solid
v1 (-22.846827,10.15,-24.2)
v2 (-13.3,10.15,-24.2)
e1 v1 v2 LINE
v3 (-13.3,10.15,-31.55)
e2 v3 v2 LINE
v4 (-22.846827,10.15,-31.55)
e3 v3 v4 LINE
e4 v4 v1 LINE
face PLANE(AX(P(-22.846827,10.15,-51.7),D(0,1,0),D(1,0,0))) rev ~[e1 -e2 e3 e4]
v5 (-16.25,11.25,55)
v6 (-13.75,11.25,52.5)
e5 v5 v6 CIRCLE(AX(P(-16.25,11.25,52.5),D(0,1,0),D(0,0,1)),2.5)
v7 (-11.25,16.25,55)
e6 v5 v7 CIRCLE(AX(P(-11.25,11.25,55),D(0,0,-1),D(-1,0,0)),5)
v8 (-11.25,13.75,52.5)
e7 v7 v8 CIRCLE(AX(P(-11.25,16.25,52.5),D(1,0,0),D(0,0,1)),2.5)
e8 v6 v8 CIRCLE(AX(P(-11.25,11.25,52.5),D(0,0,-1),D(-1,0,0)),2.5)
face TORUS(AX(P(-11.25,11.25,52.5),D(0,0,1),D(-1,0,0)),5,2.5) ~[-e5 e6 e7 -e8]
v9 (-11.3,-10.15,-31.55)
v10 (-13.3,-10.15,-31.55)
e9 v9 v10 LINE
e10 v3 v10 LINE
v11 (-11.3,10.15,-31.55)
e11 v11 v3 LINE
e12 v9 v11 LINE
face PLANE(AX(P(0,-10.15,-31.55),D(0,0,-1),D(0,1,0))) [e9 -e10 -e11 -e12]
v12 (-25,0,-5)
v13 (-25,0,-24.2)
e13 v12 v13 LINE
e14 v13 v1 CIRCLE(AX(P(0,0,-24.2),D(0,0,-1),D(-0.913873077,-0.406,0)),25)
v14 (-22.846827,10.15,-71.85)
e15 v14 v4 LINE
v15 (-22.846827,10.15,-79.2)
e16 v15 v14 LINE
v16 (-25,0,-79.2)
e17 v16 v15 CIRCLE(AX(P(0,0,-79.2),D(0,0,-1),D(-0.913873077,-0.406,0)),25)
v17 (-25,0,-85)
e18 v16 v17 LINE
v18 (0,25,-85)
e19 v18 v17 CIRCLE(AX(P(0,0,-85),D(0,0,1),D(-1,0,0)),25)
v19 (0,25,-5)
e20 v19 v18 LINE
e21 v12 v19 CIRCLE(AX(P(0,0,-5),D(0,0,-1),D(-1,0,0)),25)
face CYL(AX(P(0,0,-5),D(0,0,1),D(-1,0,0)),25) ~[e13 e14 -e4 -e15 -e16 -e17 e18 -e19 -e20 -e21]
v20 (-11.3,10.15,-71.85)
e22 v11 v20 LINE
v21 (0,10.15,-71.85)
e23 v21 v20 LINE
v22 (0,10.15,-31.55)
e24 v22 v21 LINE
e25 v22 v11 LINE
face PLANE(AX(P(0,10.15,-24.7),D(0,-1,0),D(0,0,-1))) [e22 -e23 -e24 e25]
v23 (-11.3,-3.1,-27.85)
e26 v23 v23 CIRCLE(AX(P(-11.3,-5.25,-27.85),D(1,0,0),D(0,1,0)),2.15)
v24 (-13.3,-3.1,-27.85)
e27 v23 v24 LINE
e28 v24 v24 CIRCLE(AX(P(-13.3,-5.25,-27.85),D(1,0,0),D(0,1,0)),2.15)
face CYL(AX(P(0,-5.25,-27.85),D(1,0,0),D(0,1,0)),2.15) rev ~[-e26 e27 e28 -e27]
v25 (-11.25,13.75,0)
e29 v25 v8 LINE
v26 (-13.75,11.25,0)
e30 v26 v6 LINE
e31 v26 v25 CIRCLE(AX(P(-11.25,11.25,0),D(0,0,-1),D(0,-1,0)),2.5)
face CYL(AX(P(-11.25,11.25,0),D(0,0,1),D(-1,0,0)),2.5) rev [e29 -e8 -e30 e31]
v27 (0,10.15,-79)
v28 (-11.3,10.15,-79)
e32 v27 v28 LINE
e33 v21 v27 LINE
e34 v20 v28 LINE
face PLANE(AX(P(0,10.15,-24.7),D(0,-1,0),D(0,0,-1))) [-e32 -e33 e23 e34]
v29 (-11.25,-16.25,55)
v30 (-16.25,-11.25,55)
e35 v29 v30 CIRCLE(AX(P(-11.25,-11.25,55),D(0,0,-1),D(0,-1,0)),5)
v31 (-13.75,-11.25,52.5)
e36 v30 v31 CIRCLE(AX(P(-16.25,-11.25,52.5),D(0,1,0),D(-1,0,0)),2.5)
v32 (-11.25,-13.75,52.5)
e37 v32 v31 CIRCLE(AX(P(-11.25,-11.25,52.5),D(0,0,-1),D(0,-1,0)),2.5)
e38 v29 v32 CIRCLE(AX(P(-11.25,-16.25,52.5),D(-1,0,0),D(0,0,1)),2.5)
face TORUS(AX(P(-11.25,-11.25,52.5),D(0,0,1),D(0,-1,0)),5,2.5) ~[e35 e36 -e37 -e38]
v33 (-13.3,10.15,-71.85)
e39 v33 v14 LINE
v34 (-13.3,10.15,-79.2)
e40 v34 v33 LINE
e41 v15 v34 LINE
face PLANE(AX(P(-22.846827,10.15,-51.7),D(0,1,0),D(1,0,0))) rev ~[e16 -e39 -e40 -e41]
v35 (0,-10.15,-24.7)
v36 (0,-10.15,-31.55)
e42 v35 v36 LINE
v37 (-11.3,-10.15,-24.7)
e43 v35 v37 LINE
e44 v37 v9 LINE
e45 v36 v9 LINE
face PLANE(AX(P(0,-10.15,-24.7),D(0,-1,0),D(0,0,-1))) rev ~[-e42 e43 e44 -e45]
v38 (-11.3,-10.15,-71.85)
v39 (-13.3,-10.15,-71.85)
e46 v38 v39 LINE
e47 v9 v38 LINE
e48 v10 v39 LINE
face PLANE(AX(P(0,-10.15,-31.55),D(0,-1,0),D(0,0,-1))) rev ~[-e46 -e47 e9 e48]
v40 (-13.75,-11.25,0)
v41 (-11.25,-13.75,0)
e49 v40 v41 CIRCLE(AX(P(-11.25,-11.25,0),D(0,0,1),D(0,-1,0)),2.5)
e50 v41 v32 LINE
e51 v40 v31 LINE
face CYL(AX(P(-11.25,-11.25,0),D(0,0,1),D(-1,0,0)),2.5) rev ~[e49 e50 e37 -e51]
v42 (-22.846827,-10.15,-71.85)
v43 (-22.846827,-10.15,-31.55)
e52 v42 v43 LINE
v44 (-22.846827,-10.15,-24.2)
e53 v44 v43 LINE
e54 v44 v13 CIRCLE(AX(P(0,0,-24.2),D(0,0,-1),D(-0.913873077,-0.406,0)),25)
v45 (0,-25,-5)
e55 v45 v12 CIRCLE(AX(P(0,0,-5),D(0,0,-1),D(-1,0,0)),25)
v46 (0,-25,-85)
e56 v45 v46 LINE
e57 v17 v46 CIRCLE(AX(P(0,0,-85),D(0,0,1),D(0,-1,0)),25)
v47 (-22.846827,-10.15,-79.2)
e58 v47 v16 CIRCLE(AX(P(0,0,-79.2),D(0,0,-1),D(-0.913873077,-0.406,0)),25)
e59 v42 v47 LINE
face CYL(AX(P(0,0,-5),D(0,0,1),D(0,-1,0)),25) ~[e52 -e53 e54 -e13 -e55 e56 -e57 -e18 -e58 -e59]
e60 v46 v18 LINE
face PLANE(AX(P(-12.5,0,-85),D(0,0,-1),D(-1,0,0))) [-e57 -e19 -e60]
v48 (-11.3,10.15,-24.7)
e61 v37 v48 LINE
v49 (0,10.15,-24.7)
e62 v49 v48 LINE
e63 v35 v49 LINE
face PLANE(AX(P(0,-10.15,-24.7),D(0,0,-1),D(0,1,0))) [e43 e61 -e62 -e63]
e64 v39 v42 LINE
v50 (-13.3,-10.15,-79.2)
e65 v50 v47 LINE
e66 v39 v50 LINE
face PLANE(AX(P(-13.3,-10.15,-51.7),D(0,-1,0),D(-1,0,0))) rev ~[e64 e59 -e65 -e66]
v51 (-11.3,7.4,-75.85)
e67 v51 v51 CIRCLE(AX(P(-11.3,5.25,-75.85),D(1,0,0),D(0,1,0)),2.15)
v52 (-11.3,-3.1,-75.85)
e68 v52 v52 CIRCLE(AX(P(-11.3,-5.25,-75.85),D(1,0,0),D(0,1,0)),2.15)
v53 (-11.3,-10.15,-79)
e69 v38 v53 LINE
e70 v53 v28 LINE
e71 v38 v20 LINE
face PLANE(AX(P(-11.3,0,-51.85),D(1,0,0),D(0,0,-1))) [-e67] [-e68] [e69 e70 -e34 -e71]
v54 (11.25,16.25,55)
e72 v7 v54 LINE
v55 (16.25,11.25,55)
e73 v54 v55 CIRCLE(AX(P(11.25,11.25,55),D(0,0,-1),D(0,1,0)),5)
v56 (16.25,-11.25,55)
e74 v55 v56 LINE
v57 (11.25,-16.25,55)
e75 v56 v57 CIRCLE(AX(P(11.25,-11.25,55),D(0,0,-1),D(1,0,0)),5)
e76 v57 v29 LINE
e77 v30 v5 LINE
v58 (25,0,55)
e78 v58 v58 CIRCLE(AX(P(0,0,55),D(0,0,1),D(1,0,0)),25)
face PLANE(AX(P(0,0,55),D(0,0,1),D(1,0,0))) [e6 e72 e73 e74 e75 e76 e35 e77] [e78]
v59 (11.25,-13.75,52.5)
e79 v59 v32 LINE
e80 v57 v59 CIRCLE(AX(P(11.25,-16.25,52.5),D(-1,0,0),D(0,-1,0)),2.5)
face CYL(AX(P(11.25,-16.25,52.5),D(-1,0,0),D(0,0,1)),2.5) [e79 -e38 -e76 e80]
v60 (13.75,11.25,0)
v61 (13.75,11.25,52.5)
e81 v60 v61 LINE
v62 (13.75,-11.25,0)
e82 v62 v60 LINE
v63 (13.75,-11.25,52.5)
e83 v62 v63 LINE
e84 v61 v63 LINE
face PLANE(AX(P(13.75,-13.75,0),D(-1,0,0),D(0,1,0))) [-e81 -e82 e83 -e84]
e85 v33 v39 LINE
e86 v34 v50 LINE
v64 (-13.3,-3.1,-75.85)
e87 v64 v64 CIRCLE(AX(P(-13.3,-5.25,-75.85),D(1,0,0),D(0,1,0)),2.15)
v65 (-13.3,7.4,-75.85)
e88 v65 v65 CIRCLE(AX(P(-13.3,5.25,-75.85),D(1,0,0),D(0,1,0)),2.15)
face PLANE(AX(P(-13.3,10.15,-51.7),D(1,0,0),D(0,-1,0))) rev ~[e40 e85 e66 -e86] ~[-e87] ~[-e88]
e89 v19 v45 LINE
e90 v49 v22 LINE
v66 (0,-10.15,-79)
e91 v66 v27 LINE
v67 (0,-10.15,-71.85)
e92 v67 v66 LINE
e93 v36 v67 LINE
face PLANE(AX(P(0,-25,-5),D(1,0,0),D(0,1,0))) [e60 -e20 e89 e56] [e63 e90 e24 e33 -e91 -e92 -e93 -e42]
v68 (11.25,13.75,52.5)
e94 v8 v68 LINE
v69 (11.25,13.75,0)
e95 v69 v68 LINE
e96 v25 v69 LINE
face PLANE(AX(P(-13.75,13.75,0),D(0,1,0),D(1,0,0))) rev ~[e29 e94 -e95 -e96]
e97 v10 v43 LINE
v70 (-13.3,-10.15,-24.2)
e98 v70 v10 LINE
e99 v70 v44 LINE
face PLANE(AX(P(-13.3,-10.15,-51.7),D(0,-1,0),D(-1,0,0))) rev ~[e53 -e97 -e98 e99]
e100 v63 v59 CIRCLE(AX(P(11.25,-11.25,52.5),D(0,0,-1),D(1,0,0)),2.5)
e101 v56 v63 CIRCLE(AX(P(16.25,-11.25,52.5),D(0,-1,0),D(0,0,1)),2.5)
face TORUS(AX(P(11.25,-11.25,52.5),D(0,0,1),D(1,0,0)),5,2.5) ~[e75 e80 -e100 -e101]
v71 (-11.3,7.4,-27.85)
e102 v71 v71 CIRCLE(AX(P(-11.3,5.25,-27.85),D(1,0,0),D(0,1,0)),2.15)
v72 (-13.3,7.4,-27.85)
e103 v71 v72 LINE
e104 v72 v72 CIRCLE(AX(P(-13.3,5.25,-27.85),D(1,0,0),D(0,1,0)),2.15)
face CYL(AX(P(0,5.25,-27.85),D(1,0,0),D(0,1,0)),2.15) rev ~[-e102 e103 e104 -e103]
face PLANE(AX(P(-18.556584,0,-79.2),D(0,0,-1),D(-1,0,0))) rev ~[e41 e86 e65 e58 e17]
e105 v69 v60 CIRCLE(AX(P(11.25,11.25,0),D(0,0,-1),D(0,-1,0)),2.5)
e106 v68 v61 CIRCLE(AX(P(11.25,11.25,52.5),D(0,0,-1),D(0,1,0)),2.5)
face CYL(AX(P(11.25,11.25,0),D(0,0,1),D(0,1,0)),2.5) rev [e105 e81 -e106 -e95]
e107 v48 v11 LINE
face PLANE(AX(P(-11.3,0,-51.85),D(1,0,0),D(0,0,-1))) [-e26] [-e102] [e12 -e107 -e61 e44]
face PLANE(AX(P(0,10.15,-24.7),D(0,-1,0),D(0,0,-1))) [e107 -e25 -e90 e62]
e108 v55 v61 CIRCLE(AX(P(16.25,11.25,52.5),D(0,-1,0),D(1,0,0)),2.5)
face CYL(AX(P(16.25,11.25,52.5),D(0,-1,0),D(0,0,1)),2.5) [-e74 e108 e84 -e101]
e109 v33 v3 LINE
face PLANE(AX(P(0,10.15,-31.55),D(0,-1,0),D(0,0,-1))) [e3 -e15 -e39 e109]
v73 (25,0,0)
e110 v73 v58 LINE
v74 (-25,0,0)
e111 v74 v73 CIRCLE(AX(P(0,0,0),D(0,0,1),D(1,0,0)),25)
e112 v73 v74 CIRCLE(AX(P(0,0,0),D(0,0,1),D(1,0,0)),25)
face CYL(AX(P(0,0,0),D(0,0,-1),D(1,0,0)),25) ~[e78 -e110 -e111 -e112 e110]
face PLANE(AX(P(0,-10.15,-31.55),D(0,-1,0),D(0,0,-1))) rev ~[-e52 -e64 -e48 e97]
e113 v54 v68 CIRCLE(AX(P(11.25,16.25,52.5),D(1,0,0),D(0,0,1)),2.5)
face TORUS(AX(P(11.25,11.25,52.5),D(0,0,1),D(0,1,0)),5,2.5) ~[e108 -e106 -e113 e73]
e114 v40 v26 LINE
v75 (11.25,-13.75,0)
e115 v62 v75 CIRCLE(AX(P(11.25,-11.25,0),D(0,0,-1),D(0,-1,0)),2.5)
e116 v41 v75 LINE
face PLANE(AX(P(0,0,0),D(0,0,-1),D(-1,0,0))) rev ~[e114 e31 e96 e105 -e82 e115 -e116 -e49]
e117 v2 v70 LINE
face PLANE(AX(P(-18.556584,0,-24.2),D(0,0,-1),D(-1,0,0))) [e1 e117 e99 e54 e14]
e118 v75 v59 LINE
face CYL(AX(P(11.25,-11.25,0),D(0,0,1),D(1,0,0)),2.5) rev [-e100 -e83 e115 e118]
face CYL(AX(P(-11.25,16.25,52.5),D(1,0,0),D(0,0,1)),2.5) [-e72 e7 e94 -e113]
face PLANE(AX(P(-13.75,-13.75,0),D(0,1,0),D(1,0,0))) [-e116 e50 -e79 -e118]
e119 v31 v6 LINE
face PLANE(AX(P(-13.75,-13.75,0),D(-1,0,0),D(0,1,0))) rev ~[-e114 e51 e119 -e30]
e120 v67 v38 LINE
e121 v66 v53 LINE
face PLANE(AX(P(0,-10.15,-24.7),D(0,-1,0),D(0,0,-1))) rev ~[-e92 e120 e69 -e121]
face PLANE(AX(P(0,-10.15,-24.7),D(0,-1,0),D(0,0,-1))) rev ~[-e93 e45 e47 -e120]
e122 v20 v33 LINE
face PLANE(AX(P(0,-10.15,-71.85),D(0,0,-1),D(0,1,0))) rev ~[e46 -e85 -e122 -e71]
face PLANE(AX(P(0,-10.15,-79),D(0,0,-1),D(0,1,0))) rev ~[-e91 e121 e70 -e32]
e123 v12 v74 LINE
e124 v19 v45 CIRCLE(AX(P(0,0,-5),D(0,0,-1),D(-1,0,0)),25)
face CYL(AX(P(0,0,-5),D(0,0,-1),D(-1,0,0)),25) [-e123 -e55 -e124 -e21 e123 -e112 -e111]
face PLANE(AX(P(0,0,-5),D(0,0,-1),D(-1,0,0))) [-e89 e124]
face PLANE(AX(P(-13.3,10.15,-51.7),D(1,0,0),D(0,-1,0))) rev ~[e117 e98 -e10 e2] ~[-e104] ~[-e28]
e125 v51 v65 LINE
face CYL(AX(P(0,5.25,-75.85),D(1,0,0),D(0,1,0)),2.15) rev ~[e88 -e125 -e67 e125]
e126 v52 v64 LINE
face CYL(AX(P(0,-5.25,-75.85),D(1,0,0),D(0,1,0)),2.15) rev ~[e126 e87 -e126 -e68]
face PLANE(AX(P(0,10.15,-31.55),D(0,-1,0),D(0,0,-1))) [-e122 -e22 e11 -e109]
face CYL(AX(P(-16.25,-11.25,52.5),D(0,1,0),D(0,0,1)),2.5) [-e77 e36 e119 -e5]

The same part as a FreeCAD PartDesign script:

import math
import FreeCAD as App
import Part
import Sketcher


def edges_at(feature, points):
    """Names of the edges that pass closest to the given points."""
    edges = feature.Shape.Edges
    near = lambda p: min(range(len(edges)), key=lambda i: edges[i].distToShape(Part.Vertex(*p))[0])
    return sorted({f"Edge{near(p) + 1}" for p in points})


def add_polygon(sketch, points):
    """Adds a closed chain of lines whose ends are joined by coincident constraints."""
    first, n = sketch.GeometryCount, len(points)
    for a, b in zip(points, points[1:] + points[:1]):
        sketch.addGeometry(Part.LineSegment(App.Vector(*a, 0), App.Vector(*b, 0)), False)
    for i in range(n):
        sketch.addConstraint(Sketcher.Constraint("Coincident", first + i, 2, first + (i + 1) % n, 1))

doc = App.newDocument("Part")
body = doc.addObject("PartDesign::Body", "Body")

sketch1 = doc.addObject("Sketcher::SketchObject", "Sketch")
body.addObject(sketch1)
sketch1.AttachmentSupport = (doc.XY_Plane, [""])
sketch1.MapMode = "FlatFace"
sketch1.addGeometry(Part.Circle(App.Vector(0, 0, 0), App.Vector(0, 0, 1), 25), False)
add_polygon(sketch1, [(14, -14), (-14, -14), (-14, 14), (14, 14)])
sketch1.addConstraint([
    Sketcher.Constraint("Horizontal", 1),
    Sketcher.Constraint("Vertical", 2),
    Sketcher.Constraint("Horizontal", 3),
    Sketcher.Constraint("Vertical", 4),
    Sketcher.Constraint("Coincident", 0, 3, -1, 1),
    Sketcher.Constraint("Symmetric", 1, 2, 3, 2, -1, 1),
    Sketcher.Constraint("Equal", 3, 2),
    Sketcher.Constraint("Diameter", 0, 50.0),
    Sketcher.Constraint("DistanceX", 1, 2, 1, 1, 27.5),
])
pad1 = doc.addObject("PartDesign::Pad", "Pad")
body.addObject(pad1)
pad1.Profile = sketch1
pad1.Length = 55

sketch2 = doc.addObject("Sketcher::SketchObject", "Sketch001")
body.addObject(sketch2)
sketch2.AttachmentSupport = (doc.XY_Plane, [""])
sketch2.MapMode = "FlatFace"
sketch2.AttachmentOffset = App.Placement(App.Vector(0, 0, -5), App.Rotation())
sketch2.addGeometry(Part.Circle(App.Vector(0, 0, 0), App.Vector(0, 0, 1), 25), False)
sketch2.addConstraint([
    Sketcher.Constraint("Coincident", 0, 3, -1, 1),
    Sketcher.Constraint("Diameter", 0, 50.0),
])
pad2 = doc.addObject("PartDesign::Pad", "Pad001")
body.addObject(pad2)
pad2.Profile = sketch2
pad2.Length = 5

sketch3 = doc.addObject("Sketcher::SketchObject", "Sketch002")
body.addObject(sketch3)
sketch3.AttachmentSupport = (doc.XY_Plane, [""])
sketch3.MapMode = "FlatFace"
sketch3.AttachmentOffset = App.Placement(App.Vector(0, 0, -5), App.Rotation())
add_polygon(sketch3, [(0, 25), (0, -25), (-25, -25), (-25, 25)])
sketch3.addConstraint([
    Sketcher.Constraint("Vertical", 0),
    Sketcher.Constraint("Horizontal", 1),
    Sketcher.Constraint("Vertical", 2),
    Sketcher.Constraint("Horizontal", 3),
    Sketcher.Constraint("Symmetric", 0, 2, 3, 2, -1, 1),
    Sketcher.Constraint("DistanceX", 1, 2, 1, 1, 25.0),
    Sketcher.Constraint("DistanceY", 0, 2, 0, 1, 50.0),
])
pad3 = doc.addObject("PartDesign::Pad", "Pad002")
body.addObject(pad3)
pad3.Profile = sketch3
pad3.Length = 80
pad3.Reversed = True
doc.recompute()

fillet = doc.addObject("PartDesign::Fillet", "Fillet")
body.addObject(fillet)
fillet.Base = (pad3, edges_at(pad3, [
    (-13.75, 13.75, 27.5),
    (-13.75, -13.75, 27.5),
    (13.75, -13.75, 27.5),
    (13.75, 13.75, 27.5),
]))
fillet.Radius = 2.5
doc.recompute()

fillet2 = doc.addObject("PartDesign::Fillet", "Fillet001")
body.addObject(fillet2)
fillet2.Base = (fillet, edges_at(fillet, [
    (0, 13.75, 55),
    (-13.75, 0, 55),
    (0, -13.75, 55),
    (13.75, 0, 55),
    (-13.018, 13.018, 55),
    (-13.018, -13.018, 55),
    (13.018, -13.018, 55),
    (13.018, 13.018, 55),
]))
fillet2.Radius = 2.5

sketch4 = doc.addObject("Sketcher::SketchObject", "Sketch003")
body.addObject(sketch4)
sketch4.AttachmentSupport = (doc.YZ_Plane, [""])
sketch4.MapMode = "FlatFace"
add_polygon(sketch4, [(10, -25), (-10, -25), (-10, -79), (10, -79)])
sketch4.addConstraint([
    Sketcher.Constraint("Horizontal", 0),
    Sketcher.Constraint("Vertical", 1),
    Sketcher.Constraint("Horizontal", 2),
    Sketcher.Constraint("Vertical", 3),
    Sketcher.Constraint("DistanceX", 0, 2, 0, 1, 20.3),
    Sketcher.Constraint("DistanceY", 1, 2, 1, 1, 54.3),
    Sketcher.Constraint("DistanceY", 1, 2, -1, 1, 79.0),
    Sketcher.Constraint("DistanceX", 0, 2, -1, 1, 10.15),
])
pocket1 = doc.addObject("PartDesign::Pocket", "Pocket")
body.addObject(pocket1)
pocket1.Profile = sketch4
pocket1.Length = 11.3

sketch5 = doc.addObject("Sketcher::SketchObject", "Sketch004")
body.addObject(sketch5)
sketch5.AttachmentSupport = (doc.YZ_Plane, [""])
sketch5.MapMode = "FlatFace"
add_polygon(sketch5, [(10, -32), (-10, -32), (-10, -72), (10, -72)])
sketch5.addConstraint([
    Sketcher.Constraint("Horizontal", 0),
    Sketcher.Constraint("Vertical", 1),
    Sketcher.Constraint("Horizontal", 2),
    Sketcher.Constraint("Vertical", 3),
    Sketcher.Constraint("DistanceX", 0, 2, 0, 1, 20.3),
    Sketcher.Constraint("DistanceY", 1, 2, 1, 1, 40.3),
    Sketcher.Constraint("DistanceX", 0, 2, -1, 1, 10.15),
    Sketcher.Constraint("DistanceY", 0, 2, -1, 1, 31.55),
])
pocket2 = doc.addObject("PartDesign::Pocket", "Pocket001")
body.addObject(pocket2)
pocket2.Profile = sketch5
pocket2.Type = "ThroughAll"

sketch6 = doc.addObject("Sketcher::SketchObject", "Sketch005")
body.addObject(sketch6)
sketch6.AttachmentSupport = (doc.XY_Plane, [""])
sketch6.MapMode = "FlatFace"
sketch6.AttachmentOffset = App.Placement(App.Vector(0, 0, -5), App.Rotation())
sketch6.addGeometry([
    Part.LineSegment(App.Vector(-25, -25, 0), App.Vector(0, -25, 0)),
    Part.ArcOfCircle(Part.Circle(App.Vector(0, 0, 0), App.Vector(0, 0, 1), 25), math.radians(180), math.radians(270)),
    Part.LineSegment(App.Vector(-25, 0, 0), App.Vector(-25, -25, 0)),
    Part.LineSegment(App.Vector(-25, 25, 0), App.Vector(-25, 0, 0)),
    Part.ArcOfCircle(Part.Circle(App.Vector(0, 0, 0), App.Vector(0, 0, 1), 25), math.radians(90), math.radians(180)),
    Part.LineSegment(App.Vector(0, 25, 0), App.Vector(-25, 25, 0)),
], False)
sketch6.addConstraint([
    Sketcher.Constraint("Tangent", 0, 2, 1, 2),
    Sketcher.Constraint("Tangent", 1, 1, 2, 1),
    Sketcher.Constraint("Coincident", 2, 2, 0, 1),
    Sketcher.Constraint("Tangent", 3, 2, 4, 2),
    Sketcher.Constraint("Tangent", 4, 1, 5, 1),
    Sketcher.Constraint("Coincident", 5, 2, 3, 1),
    Sketcher.Constraint("Horizontal", 0),
    Sketcher.Constraint("Vertical", 2),
    Sketcher.Constraint("Vertical", 3),
    Sketcher.Constraint("Horizontal", 5),
    Sketcher.Constraint("Coincident", 1, 3, -1, 1),
    Sketcher.Constraint("Coincident", 4, 3, -1, 1),
    Sketcher.Constraint("Equal", 1, 4),
    Sketcher.Constraint("Radius", 1, 25.0),
])
pocket3 = doc.addObject("PartDesign::Pocket", "Pocket002")
body.addObject(pocket3)
pocket3.Profile = sketch6
pocket3.Type = "ThroughAll"

sketch7 = doc.addObject("Sketcher::SketchObject", "Sketch006")
body.addObject(sketch7)
sketch7.AttachmentSupport = (doc.YZ_Plane, [""])
sketch7.MapMode = "FlatFace"
sketch7.addGeometry([
    Part.Circle(App.Vector(-5.2, -27.9, 0), App.Vector(0, 0, 1), 2.1),
    Part.Circle(App.Vector(5.2, -75.8, 0), App.Vector(0, 0, 1), 2.1),
    Part.Circle(App.Vector(-5.2, -75.8, 0), App.Vector(0, 0, 1), 2.1),
    Part.Circle(App.Vector(5.2, -27.9, 0), App.Vector(0, 0, 1), 2.1),
], False)
sketch7.addConstraint([
    Sketcher.Constraint("Equal", 0, 1),
    Sketcher.Constraint("Equal", 1, 2),
    Sketcher.Constraint("Equal", 2, 3),
    Sketcher.Constraint("Symmetric", 1, 3, 2, 3, -2),
    Sketcher.Constraint("Symmetric", 0, 3, 3, 3, -2),
    Sketcher.Constraint("Vertical", 0, 3, 2, 3),
    Sketcher.Constraint("Diameter", 0, 4.3),
    Sketcher.Constraint("DistanceY", 1, 3, 0, 3, 48.0),
    Sketcher.Constraint("DistanceX", 0, 3, 1, 3, 10.5),
    Sketcher.Constraint("DistanceY", 0, 3, -1, 1, 27.85),
])
pocket4 = doc.addObject("PartDesign::Pocket", "Pocket003")
body.addObject(pocket4)
pocket4.Profile = sketch7
pocket4.Type = "ThroughAll"

sketch8 = doc.addObject("Sketcher::SketchObject", "Sketch007")
body.addObject(sketch8)
sketch8.AttachmentSupport = (doc.XY_Plane, [""])
sketch8.MapMode = "FlatFace"
sketch8.AttachmentOffset = App.Placement(App.Vector(0, 0, -51.7), App.Rotation())
sketch8.addGeometry([
    Part.LineSegment(App.Vector(-13, 10, 0), App.Vector(-13, -10, 0)),
    Part.LineSegment(App.Vector(-13, -10, 0), App.Vector(-23, -10, 0)),
    Part.ArcOfCircle(Part.Circle(App.Vector(0, 0, 0), App.Vector(0, 0, 1), 25), math.radians(156), math.radians(204)),
    Part.LineSegment(App.Vector(-23, 10, 0), App.Vector(-13, 10, 0)),
], False)
sketch8.addConstraint([
    Sketcher.Constraint("Coincident", 0, 2, 1, 1),
    Sketcher.Constraint("Coincident", 1, 2, 2, 2),
    Sketcher.Constraint("Coincident", 2, 1, 3, 1),
    Sketcher.Constraint("Coincident", 3, 2, 0, 1),
    Sketcher.Constraint("Vertical", 0),
    Sketcher.Constraint("Horizontal", 1),
    Sketcher.Constraint("Horizontal", 3),
    Sketcher.Constraint("Coincident", 2, 3, -1, 1),
    Sketcher.Constraint("Vertical", 1, 2, 2, 1),
    Sketcher.Constraint("Radius", 2, 25.0),
    Sketcher.Constraint("DistanceY", 0, 2, 0, 1, 20.3),
    Sketcher.Constraint("DistanceX", 0, 2, -1, 1, 13.3),
])
pocket5 = doc.addObject("PartDesign::Pocket", "Pocket004")
body.addObject(pocket5)
pocket5.Profile = sketch8
pocket5.Length = 55
pocket5.Midplane = True

doc.recompute()
